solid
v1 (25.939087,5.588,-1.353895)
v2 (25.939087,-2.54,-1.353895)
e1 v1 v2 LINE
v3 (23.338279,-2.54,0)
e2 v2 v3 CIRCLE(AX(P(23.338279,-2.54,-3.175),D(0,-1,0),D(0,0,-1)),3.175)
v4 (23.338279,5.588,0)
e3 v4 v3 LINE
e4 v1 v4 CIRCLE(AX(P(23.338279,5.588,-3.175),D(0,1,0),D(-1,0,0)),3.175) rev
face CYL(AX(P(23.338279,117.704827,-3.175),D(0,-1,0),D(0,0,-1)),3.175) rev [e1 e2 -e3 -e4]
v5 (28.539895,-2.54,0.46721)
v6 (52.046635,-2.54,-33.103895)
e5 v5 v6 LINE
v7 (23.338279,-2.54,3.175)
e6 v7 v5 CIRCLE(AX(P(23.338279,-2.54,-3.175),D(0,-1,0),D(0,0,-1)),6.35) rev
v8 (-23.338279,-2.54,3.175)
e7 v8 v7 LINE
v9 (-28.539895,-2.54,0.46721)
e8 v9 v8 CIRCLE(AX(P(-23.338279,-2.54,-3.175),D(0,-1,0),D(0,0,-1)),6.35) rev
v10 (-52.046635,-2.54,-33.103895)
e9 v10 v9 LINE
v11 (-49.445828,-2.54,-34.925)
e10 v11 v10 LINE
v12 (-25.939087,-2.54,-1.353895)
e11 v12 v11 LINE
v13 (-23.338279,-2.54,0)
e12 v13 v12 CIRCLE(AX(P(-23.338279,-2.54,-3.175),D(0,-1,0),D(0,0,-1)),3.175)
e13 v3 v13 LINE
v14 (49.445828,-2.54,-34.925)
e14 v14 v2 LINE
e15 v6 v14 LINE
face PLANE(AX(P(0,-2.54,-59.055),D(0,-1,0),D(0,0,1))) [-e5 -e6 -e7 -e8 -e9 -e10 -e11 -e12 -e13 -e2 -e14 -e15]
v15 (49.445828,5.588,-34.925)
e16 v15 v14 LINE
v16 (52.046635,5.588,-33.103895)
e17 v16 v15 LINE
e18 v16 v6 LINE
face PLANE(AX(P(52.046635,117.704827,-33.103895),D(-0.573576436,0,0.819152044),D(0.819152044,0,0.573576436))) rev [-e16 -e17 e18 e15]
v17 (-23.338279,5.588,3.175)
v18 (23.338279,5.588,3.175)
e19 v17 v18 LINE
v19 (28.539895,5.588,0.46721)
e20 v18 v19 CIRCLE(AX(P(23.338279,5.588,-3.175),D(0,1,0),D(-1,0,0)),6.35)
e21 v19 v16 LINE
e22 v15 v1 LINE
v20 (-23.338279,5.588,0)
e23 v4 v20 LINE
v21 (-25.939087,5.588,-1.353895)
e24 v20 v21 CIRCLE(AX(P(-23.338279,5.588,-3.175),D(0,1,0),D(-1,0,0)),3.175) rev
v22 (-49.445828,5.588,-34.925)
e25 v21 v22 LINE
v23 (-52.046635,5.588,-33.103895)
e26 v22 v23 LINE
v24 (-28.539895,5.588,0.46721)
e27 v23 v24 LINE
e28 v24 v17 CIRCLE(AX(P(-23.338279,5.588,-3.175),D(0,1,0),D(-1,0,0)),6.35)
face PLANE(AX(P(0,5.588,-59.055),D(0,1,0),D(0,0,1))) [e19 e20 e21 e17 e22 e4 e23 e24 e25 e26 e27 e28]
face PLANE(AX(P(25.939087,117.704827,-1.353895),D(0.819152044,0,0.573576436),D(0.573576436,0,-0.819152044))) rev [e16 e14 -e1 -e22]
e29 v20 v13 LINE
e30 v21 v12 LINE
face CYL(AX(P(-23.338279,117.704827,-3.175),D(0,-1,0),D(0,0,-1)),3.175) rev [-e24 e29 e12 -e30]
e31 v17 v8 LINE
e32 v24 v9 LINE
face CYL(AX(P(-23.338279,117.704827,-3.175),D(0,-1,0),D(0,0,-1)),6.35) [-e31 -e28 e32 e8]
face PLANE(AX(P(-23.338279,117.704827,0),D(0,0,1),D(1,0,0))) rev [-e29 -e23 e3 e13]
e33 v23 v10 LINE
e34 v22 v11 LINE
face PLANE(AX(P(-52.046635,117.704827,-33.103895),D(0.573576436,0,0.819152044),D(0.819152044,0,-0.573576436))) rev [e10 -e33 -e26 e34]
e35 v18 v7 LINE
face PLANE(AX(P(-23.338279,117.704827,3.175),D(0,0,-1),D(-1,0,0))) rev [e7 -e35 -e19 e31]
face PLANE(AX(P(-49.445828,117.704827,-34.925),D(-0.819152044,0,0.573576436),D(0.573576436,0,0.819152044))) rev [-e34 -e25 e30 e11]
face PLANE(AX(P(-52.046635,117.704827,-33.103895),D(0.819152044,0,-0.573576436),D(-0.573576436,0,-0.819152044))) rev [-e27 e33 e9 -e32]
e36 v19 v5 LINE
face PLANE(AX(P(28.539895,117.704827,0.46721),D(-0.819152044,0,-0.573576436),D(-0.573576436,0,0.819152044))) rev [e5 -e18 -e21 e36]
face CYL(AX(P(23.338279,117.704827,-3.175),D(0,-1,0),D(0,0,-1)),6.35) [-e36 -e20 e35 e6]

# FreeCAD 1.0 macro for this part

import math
import FreeCAD as App
import Part
import Sketcher

V = App.Vector
Q = App.Units.Quantity

doc = App.newDocument("Part")
params = doc.addObject("Spreadsheet::Sheet", "Params")
for row, (alias, value) in enumerate([
    ("sketch1_radius", "0.25 in"),
    ("sketch1_radius2", "0.125 in"),
    ("pad1_length", "0.22 in"),
    ("pad1_length2", "0.1 in"),
], start=1):
    params.set(f"A{row}", alias)
    params.set(f"B{row}", "=" + value)
    params.setAlias(f"B{row}", alias)

body = doc.addObject("PartDesign::Body", "Body")

# Sketch on XZ plane
sketch1 = body.newObject("Sketcher::SketchObject", "Sketch")
sketch1.AttachmentSupport = (doc.getObject("XZ_Plane"), [""])
sketch1.MapMode = "FlatFace"
sketch1.addGeometry(Part.LineSegment(V(-25.9, -1.4, 0), V(-49.4, -34.9, 0)), False)
sketch1.addGeometry(Part.LineSegment(V(-49.4, -34.9, 0), V(-52, -33.1, 0)), False)
sketch1.addGeometry(Part.LineSegment(V(-52, -33.1, 0), V(-28.5, 0.5, 0)), False)
sketch1.addGeometry(Part.ArcOfCircle(Part.Circle(V(-23.3, -3.2, 0), V(0, 0, 1), 6.3), math.radians(90), math.radians(145)), False)
sketch1.addGeometry(Part.LineSegment(V(-23.3, 3.2, 0), V(23.3, 3.2, 0)), False)
sketch1.addGeometry(Part.ArcOfCircle(Part.Circle(V(23.3, -3.2, 0), V(0, 0, 1), 6.3), math.radians(35), math.radians(90)), False)
sketch1.addGeometry(Part.LineSegment(V(28.5, 0.5, 0), V(52, -33.1, 0)), False)
sketch1.addGeometry(Part.LineSegment(V(52, -33.1, 0), V(49.4, -34.9, 0)), False)
sketch1.addGeometry(Part.LineSegment(V(49.4, -34.9, 0), V(25.9, -1.4, 0)), False)
sketch1.addGeometry(Part.ArcOfCircle(Part.Circle(V(23.3, -3.2, 0), V(0, 0, 1), 3.2), math.radians(35), math.radians(90)), False)
sketch1.addGeometry(Part.LineSegment(V(23.3, 0, 0), V(-23.3, 0, 0)), False)
sketch1.addGeometry(Part.ArcOfCircle(Part.Circle(V(-23.3, -3.2, 0), V(0, 0, 1), 3.2), math.radians(90), math.radians(145)), False)
sketch1.addConstraint(Sketcher.Constraint("Coincident", 0, 2, 1, 1))
sketch1.addConstraint(Sketcher.Constraint("Coincident", 1, 2, 2, 1))
sketch1.addConstraint(Sketcher.Constraint("Tangent", 2, 2, 3, 2))
sketch1.addConstraint(Sketcher.Constraint("Tangent", 3, 1, 4, 1))
sketch1.addConstraint(Sketcher.Constraint("Tangent", 4, 2, 5, 2))
sketch1.addConstraint(Sketcher.Constraint("Tangent", 5, 1, 6, 1))
sketch1.addConstraint(Sketcher.Constraint("Coincident", 6, 2, 7, 1))
sketch1.addConstraint(Sketcher.Constraint("Coincident", 7, 2, 8, 1))
sketch1.addConstraint(Sketcher.Constraint("Tangent", 8, 2, 9, 1))
sketch1.addConstraint(Sketcher.Constraint("Tangent", 9, 2, 10, 1))
sketch1.addConstraint(Sketcher.Constraint("Tangent", 10, 2, 11, 1))
sketch1.addConstraint(Sketcher.Constraint("Tangent", 11, 2, 0, 1))
sketch1.addConstraint(Sketcher.Constraint("Horizontal", 4))
sketch1.addConstraint(Sketcher.Constraint("Horizontal", 10))
sketch1.addConstraint(Sketcher.Constraint("Coincident", 9, 3, 5, 3))
sketch1.addConstraint(Sketcher.Constraint("Coincident", 11, 3, 3, 3))
sketch1.addConstraint(Sketcher.Constraint("Equal", 3, 5))
sketch1.addConstraint(Sketcher.Constraint("Symmetric", 9, 2, 10, 2, -1, 1))
sketch1.addConstraint(Sketcher.Constraint("Symmetric", 1, 2, 6, 2, -2))
sketch1.addConstraint(Sketcher.Constraint("Symmetric", 0, 2, 7, 2, -2))
sketch1.addConstraint(Sketcher.Constraint("Perpendicular", 0, 1))
sketch1.addConstraint(Sketcher.Constraint("Perpendicular", 1, 2))
sketch1.addConstraint(Sketcher.Constraint("Radius", 3, Q("0.25 in")))
sketch1.addConstraint(Sketcher.Constraint("Angle", 0, Q("-125 deg")))
sketch1.addConstraint(Sketcher.Constraint("Radius", 9, Q("0.125 in")))
sketch1.addConstraint(Sketcher.Constraint("DistanceY", 0, 2, 3, 1, Q("1.5 in")))
sketch1.addConstraint(Sketcher.Constraint("DistanceX", 4, 1, 4, 2, 46.676558))
sketch1.setExpression("Constraints[22]", "Params.sketch1_radius")
sketch1.setExpression("Constraints[24]", "Params.sketch1_radius2")
pad1 = body.newObject("PartDesign::Pad", "Pad")
pad1.Profile = sketch1
pad1.Type = "TwoLengths"
pad1.setExpression("Length", "Params.pad1_length")
pad1.setExpression("Length2", "Params.pad1_length2")
pad1.Reversed = True

doc.recompute()
